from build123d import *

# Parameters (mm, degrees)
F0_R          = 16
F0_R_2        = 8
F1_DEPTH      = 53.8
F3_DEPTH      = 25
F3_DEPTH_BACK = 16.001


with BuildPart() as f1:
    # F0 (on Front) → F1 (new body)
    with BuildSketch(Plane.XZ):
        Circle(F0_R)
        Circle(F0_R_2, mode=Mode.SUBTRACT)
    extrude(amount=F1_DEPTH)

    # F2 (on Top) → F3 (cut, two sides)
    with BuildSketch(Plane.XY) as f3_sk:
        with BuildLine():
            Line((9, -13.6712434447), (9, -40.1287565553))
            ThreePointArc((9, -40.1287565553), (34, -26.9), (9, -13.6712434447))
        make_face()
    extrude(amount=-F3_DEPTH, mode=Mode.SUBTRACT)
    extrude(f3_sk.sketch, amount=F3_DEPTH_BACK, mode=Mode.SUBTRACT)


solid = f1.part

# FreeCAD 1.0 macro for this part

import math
import FreeCAD as App
import Part
import Sketcher
from FreeCAD import Vector

doc = App.newDocument("Part")
body = doc.addObject("PartDesign::Body", "Body")

# Sketch on XZ plane
sketch1 = body.newObject("Sketcher::SketchObject", "Sketch")
sketch1.AttachmentSupport = (doc.getObject("XZ_Plane"), [""])
sketch1.MapMode = "FlatFace"
sketch1.addGeometry(Part.Circle(Vector(0, 0, 0), Vector(0, 0, 1), 16), False)
sketch1.addGeometry(Part.Circle(Vector(0, 0, 0), Vector(0, 0, 1), 8), False)
sketch1.addConstraint(Sketcher.Constraint("Coincident", 0, 3, -1, 1))
sketch1.addConstraint(Sketcher.Constraint("Coincident", 1, 3, -1, 1))
sketch1.addConstraint(Sketcher.Constraint("Diameter", 0, 32.0))
sketch1.addConstraint(Sketcher.Constraint("Diameter", 1, 16.0))
pad1 = body.newObject("PartDesign::Pad", "Pad")
pad1.Profile = sketch1
pad1.Length = 53.8

# Sketch on XY plane
sketch2 = body.newObject("Sketcher::SketchObject", "Sketch001")
sketch2.AttachmentSupport = (doc.getObject("XY_Plane"), [""])
sketch2.MapMode = "FlatFace"
sketch2.addGeometry(Part.LineSegment(Vector(9, -14, 0), Vector(9, -40, 0)), False)
sketch2.addGeometry(Part.ArcOfCircle(Part.Circle(Vector(18, -27, 0), Vector(0, 0, 1), 16), math.radians(-124), math.radians(124)), False)
sketch2.addConstraint(Sketcher.Constraint("Coincident", 0, 1, 1, 2))
sketch2.addConstraint(Sketcher.Constraint("Coincident", 1, 1, 0, 2))
sketch2.addConstraint(Sketcher.Constraint("Vertical", 0))
sketch2.addConstraint(Sketcher.Constraint("Radius", 1, 16.0))
sketch2.addConstraint(Sketcher.Constraint("DistanceX", -1, 1, 1, 3, 18.0))
sketch2.addConstraint(Sketcher.Constraint("DistanceX", -1, 1, 0, 1, 9.0))
sketch2.addConstraint(Sketcher.Constraint("DistanceY", 1, 3, -1, 1, 26.9))
pocket1 = body.newObject("PartDesign::Pocket", "Pocket")
pocket1.Profile = sketch2
pocket1.Type = "ThroughAll"
pocket1.Midplane = True

doc.recompute()
